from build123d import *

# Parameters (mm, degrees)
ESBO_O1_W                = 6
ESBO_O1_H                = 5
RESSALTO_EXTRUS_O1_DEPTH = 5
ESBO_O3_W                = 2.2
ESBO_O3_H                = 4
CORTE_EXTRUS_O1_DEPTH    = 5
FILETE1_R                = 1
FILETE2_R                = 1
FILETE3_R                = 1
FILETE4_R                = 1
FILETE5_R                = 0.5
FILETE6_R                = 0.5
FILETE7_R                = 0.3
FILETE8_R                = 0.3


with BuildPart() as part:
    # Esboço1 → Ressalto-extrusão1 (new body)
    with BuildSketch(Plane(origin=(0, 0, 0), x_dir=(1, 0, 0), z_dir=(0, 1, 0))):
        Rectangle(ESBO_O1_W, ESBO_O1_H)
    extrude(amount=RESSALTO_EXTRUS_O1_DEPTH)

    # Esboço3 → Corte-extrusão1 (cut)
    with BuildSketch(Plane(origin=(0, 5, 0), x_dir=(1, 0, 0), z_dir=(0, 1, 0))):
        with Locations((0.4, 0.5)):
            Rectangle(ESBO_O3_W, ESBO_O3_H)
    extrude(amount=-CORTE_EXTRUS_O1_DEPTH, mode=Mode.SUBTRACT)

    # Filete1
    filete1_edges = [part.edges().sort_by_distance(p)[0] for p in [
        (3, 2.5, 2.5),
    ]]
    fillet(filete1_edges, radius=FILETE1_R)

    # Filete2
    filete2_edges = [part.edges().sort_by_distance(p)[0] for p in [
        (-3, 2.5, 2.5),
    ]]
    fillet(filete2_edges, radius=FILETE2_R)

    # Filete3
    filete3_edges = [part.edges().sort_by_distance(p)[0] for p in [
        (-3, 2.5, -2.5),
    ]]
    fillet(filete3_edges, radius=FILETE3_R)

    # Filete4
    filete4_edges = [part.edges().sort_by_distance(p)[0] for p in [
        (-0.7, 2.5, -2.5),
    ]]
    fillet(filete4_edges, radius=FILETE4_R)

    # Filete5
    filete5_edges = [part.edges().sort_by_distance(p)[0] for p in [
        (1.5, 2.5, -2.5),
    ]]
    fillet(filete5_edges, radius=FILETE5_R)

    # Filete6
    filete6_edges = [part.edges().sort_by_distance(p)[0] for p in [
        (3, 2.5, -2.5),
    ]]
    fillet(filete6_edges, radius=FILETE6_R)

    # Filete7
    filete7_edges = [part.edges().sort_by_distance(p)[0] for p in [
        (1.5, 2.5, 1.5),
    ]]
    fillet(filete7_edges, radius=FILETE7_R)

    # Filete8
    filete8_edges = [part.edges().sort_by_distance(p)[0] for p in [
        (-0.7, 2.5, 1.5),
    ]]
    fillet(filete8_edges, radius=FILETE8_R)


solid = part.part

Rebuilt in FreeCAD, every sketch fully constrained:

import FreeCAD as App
import Part
import Sketcher
from FreeCAD import Vector
Q = App.Units.Quantity


def edges_at(feature, points):
    """Names of the edges that pass closest to the given points."""
    edges = feature.Shape.Edges
    near = lambda p: min(range(len(edges)), key=lambda i: edges[i].distToShape(Part.Vertex(*p))[0])
    return sorted({f"Edge{near(p) + 1}" for p in points})


def add_polygon(sketch, points):
    """Adds a closed chain of lines whose ends are joined by coincident constraints."""
    first, n = sketch.GeometryCount, len(points)
    for a, b in zip(points, points[1:] + points[:1]):
        sketch.addGeometry(Part.LineSegment(App.Vector(*a, 0), App.Vector(*b, 0)), False)
    for i in range(n):
        sketch.addConstraint(Sketcher.Constraint("Coincident", first + i, 2, first + (i + 1) % n, 1))

doc = App.newDocument("Part")
body = doc.addObject("PartDesign::Body", "Body")

# Sketch on XZ plane
sketch1 = doc.addObject("Sketcher::SketchObject", "Sketch")
body.addObject(sketch1)
sketch1.AttachmentSupport = (doc.XZ_Plane, [""])
sketch1.MapMode = "FlatFace"
add_polygon(sketch1, [(-3, -2), (-3, 2), (3, 2), (3, -2)])  # lines 0-3
sketch1.addConstraint([
    Sketcher.Constraint("Vertical", 0),
    Sketcher.Constraint("Horizontal", 1),
    Sketcher.Constraint("Vertical", 2),
    Sketcher.Constraint("Horizontal", 3),
    Sketcher.Constraint("Symmetric", 0, 2, 2, 2, -1, 1),
    Sketcher.Constraint("DistanceX", 1, 1, 1, 2, Q("6 mm")),
    Sketcher.Constraint("DistanceY", 0, 1, 0, 2, Q("5 mm")),
])
pad1 = doc.addObject("PartDesign::Pad", "Pad")
body.addObject(pad1)
pad1.Profile = sketch1
pad1.Length = 5
pad1.Reversed = True

# Sketch on XZ plane
sketch2 = doc.addObject("Sketcher::SketchObject", "Sketch001")
body.addObject(sketch2)
sketch2.AttachmentSupport = (doc.XZ_Plane, [""])
sketch2.MapMode = "FlatFace"
sketch2.AttachmentOffset = App.Placement(Vector(0, 0, -5), App.Rotation())
add_polygon(sketch2, [(-0.7, -2.5), (-0.7, 1.5), (1.5, 1.5), (1.5, -2.5)])  # lines 0-3
sketch2.addConstraint([
    Sketcher.Constraint("Vertical", 0),
    Sketcher.Constraint("Horizontal", 1),
    Sketcher.Constraint("Vertical", 2),
    Sketcher.Constraint("Horizontal", 3),
    Sketcher.Constraint("DistanceY", 0, 1, 0, 2, Q("4 mm")),
    Sketcher.Constraint("DistanceX", 1, 1, 1, 2, Q("2.2 mm")),
    Sketcher.Constraint("DistanceX", 0, 2, -1, 1, Q("0.7 mm")),
    Sketcher.Constraint("DistanceY", -1, 1, 0, 2, Q("1.5 mm")),
])
pocket1 = doc.addObject("PartDesign::Pocket", "Pocket")
body.addObject(pocket1)
pocket1.Profile = sketch2
pocket1.Length = 5
pocket1.Reversed = True
doc.recompute()

fillet = doc.addObject("PartDesign::Fillet", "Fillet")
body.addObject(fillet)
fillet.Base = (pocket1, edges_at(pocket1, [(3, 2.5, 2.5)]))
fillet.Radius = 1
doc.recompute()

fillet2 = doc.addObject("PartDesign::Fillet", "Fillet001")
body.addObject(fillet2)
fillet2.Base = (fillet, edges_at(fillet, [(-3, 2.5, 2.5)]))
fillet2.Radius = 1
doc.recompute()

fillet3 = doc.addObject("PartDesign::Fillet", "Fillet002")
body.addObject(fillet3)
fillet3.Base = (fillet2, edges_at(fillet2, [(-3, 2.5, -2.5)]))
fillet3.Radius = 1
doc.recompute()

fillet4 = doc.addObject("PartDesign::Fillet", "Fillet003")
body.addObject(fillet4)
fillet4.Base = (fillet3, edges_at(fillet3, [(-0.7, 2.5, -2.5)]))
fillet4.Radius = 1
doc.recompute()

fillet5 = doc.addObject("PartDesign::Fillet", "Fillet004")
body.addObject(fillet5)
fillet5.Base = (fillet4, edges_at(fillet4, [(1.5, 2.5, -2.5)]))
fillet5.Radius = 0.5
doc.recompute()

fillet6 = doc.addObject("PartDesign::Fillet", "Fillet005")
body.addObject(fillet6)
fillet6.Base = (fillet5, edges_at(fillet5, [(3, 2.5, -2.5)]))
fillet6.Radius = 0.5
doc.recompute()

fillet7 = doc.addObject("PartDesign::Fillet", "Fillet006")
body.addObject(fillet7)
fillet7.Base = (fillet6, edges_at(fillet6, [(1.5, 2.5, 1.5)]))
fillet7.Radius = 0.3
doc.recompute()

fillet8 = doc.addObject("PartDesign::Fillet", "Fillet007")
body.addObject(fillet8)
fillet8.Base = (fillet7, edges_at(fillet7, [(-0.7, 2.5, 1.5)]))
fillet8.Radius = 0.3

doc.recompute()
